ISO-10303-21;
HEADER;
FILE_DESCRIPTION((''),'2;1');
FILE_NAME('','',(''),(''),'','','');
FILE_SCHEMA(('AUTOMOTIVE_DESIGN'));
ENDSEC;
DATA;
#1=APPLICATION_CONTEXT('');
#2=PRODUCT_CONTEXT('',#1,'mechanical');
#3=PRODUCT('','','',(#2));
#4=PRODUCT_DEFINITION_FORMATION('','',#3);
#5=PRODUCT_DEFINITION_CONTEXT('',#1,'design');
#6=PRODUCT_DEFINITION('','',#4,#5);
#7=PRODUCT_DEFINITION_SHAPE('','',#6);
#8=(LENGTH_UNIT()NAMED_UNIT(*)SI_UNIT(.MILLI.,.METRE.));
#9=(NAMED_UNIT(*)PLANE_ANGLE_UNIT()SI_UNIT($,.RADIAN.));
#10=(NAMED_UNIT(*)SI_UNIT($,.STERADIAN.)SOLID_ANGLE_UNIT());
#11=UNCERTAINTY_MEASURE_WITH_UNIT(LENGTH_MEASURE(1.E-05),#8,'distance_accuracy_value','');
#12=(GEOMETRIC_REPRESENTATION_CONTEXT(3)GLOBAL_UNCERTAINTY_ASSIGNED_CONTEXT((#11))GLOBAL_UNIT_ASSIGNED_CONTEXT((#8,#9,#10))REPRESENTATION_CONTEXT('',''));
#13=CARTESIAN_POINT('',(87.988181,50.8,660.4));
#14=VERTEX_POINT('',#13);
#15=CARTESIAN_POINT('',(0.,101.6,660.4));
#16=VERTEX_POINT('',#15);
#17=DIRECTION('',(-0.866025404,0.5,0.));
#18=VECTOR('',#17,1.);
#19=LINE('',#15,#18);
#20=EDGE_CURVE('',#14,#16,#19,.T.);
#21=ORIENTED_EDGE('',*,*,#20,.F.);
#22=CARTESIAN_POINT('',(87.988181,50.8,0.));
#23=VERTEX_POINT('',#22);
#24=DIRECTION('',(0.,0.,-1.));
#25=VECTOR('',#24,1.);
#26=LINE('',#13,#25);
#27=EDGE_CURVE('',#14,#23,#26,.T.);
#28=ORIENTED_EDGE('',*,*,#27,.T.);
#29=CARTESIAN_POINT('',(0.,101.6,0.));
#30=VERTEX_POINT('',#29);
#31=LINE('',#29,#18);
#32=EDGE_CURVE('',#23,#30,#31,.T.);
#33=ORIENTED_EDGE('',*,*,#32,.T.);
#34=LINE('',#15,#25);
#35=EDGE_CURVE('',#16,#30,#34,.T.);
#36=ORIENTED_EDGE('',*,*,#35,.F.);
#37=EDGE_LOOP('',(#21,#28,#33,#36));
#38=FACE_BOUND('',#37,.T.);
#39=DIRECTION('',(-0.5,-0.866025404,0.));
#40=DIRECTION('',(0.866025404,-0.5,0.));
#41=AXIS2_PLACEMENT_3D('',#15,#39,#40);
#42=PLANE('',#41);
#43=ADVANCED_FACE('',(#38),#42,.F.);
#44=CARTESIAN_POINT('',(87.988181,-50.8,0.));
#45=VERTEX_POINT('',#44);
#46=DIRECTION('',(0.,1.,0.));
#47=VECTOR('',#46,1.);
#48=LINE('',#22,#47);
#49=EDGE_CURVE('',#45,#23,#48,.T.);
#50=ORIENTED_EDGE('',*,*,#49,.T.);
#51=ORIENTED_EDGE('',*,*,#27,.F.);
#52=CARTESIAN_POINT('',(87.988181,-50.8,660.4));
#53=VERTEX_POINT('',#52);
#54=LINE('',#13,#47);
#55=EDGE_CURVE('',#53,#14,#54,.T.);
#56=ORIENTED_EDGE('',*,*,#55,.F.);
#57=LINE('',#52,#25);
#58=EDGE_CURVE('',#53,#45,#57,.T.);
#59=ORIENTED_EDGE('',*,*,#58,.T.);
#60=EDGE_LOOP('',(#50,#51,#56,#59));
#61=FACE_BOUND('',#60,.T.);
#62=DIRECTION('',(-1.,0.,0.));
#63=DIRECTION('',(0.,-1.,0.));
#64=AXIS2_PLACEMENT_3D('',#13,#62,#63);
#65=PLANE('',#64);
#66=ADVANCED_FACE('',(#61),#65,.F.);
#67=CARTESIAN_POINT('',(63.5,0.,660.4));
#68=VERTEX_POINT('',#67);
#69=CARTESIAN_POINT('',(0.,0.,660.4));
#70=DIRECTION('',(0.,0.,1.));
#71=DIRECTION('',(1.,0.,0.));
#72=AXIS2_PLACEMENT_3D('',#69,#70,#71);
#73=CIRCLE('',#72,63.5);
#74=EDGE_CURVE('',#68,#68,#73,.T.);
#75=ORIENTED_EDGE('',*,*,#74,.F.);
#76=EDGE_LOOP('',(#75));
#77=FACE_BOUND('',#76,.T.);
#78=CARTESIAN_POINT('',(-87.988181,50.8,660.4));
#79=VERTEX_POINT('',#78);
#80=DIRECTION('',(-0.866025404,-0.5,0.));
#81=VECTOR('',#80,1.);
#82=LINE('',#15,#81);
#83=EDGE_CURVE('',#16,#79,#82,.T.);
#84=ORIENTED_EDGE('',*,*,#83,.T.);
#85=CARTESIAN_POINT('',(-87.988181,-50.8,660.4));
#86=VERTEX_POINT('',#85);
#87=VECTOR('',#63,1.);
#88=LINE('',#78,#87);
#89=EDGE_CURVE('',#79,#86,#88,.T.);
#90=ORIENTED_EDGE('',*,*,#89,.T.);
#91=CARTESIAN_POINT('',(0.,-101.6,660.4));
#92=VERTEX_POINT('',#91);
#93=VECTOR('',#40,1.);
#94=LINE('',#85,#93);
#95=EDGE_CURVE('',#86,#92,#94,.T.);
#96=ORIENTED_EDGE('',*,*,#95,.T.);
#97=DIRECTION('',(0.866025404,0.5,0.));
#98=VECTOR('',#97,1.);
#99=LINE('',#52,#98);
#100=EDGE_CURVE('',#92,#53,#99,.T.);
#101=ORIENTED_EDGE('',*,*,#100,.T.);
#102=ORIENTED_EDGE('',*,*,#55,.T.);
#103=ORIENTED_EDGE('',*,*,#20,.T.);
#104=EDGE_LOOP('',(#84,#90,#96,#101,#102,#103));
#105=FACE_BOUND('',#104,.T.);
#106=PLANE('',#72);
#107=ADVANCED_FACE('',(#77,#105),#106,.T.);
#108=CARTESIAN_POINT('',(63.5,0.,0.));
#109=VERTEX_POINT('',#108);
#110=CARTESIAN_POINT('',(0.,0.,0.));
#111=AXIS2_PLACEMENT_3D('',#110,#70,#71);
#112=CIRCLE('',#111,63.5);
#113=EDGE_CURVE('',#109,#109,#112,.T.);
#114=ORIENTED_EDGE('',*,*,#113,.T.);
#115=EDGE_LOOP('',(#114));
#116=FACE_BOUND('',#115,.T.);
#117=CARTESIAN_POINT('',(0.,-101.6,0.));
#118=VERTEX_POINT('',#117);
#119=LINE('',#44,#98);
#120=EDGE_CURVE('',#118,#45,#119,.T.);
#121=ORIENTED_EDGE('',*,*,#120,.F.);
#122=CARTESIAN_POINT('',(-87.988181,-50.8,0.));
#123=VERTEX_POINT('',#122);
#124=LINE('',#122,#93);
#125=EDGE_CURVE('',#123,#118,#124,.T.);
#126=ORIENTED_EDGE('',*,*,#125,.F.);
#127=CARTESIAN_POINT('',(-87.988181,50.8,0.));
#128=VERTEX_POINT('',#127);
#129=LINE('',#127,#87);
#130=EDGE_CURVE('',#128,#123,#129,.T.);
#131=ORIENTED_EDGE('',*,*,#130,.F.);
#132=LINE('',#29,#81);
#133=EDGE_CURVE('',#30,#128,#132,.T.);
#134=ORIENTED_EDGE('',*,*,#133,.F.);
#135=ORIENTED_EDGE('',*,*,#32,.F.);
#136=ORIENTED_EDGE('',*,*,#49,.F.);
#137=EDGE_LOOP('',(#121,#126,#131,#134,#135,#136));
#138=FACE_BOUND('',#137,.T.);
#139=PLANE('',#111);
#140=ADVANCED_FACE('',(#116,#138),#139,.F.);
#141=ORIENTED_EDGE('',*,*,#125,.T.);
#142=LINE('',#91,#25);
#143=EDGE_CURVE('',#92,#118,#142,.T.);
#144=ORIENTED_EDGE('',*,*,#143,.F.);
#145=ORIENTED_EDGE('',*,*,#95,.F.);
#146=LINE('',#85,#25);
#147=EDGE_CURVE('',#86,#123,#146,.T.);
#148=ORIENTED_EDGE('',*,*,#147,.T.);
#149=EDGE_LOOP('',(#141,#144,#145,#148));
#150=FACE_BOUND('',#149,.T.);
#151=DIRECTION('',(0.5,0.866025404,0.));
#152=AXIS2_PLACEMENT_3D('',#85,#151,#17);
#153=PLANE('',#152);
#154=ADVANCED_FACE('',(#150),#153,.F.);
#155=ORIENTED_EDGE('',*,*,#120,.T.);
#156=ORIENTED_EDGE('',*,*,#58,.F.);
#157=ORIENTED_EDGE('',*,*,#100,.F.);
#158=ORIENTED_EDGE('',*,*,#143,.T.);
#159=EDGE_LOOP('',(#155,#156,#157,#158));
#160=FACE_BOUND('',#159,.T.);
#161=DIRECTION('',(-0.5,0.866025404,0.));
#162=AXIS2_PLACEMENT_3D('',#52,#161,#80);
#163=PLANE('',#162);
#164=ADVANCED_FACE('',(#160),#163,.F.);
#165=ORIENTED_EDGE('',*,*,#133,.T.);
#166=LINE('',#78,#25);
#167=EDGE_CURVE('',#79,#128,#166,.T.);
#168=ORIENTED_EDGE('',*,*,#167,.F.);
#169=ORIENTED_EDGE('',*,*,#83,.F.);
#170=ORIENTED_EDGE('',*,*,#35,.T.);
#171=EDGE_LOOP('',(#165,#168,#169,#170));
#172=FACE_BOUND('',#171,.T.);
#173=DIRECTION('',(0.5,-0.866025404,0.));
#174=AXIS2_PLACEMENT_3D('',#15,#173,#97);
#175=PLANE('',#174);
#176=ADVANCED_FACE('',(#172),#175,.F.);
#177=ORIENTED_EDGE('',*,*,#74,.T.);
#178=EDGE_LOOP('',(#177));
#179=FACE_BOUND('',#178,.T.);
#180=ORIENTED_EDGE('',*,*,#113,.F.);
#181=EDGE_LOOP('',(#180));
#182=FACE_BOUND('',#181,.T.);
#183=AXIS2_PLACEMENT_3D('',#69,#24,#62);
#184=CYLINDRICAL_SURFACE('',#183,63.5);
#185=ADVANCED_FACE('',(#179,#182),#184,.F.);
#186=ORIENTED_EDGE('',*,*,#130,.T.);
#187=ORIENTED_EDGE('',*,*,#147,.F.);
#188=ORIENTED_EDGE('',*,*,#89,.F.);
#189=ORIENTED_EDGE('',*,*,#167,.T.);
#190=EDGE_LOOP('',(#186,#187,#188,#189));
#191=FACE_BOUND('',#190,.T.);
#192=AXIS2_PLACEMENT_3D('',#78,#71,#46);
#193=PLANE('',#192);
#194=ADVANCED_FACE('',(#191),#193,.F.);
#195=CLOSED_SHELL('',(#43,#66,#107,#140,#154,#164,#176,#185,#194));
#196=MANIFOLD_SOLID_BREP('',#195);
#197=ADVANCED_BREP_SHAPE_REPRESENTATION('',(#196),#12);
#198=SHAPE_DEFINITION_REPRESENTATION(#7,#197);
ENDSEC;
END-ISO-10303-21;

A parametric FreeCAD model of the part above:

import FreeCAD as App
import Part
import Sketcher
from FreeCAD import Vector
Q = App.Units.Quantity


def add_polygon(sketch, points):
    """Adds a closed chain of lines whose ends are joined by coincident constraints."""
    first, n = sketch.GeometryCount, len(points)
    for a, b in zip(points, points[1:] + points[:1]):
        sketch.addGeometry(Part.LineSegment(App.Vector(*a, 0), App.Vector(*b, 0)), False)
    for i in range(n):
        sketch.addConstraint(Sketcher.Constraint("Coincident", first + i, 2, first + (i + 1) % n, 1))

doc = App.newDocument("Part")
params = doc.addObject("Spreadsheet::Sheet", "Params")
for row, (alias, value) in enumerate([
    ("sketch1_diameter", "5 in"),
    ("sketch1_height", "4 in"),
    ("sketch1_length", "4 in"),
    ("pad1_length", "26 in"),
], start=1):
    params.set(f"A{row}", alias)
    params.set(f"B{row}", "=" + value)
    params.setAlias(f"B{row}", alias)

body = doc.addObject("PartDesign::Body", "Body")

# Sketch on XY plane
sketch1 = doc.addObject("Sketcher::SketchObject", "Sketch")
body.addObject(sketch1)
sketch1.AttachmentSupport = (doc.XY_Plane, [""])
sketch1.MapMode = "FlatFace"
add_polygon(sketch1, [(87.988181, 50.8), (0, 101.6), (-87.988181, 50.8), (-87.988181, -50.8), (0, -101.6), (87.988181, -50.8)])  # lines 0-5
sketch1.addGeometry(Part.Circle(Vector(0, 0, 0), Vector(0, 0, 1), 63.5), False)  # 6
sketch1.addConstraint([
    Sketcher.Constraint("Vertical", 2),
    Sketcher.Constraint("Vertical", 5),
    Sketcher.Constraint("Coincident", 6, 3, -1, 1),
    Sketcher.Constraint("Symmetric", 0, 2, 3, 2, -1, 1),
    Sketcher.Constraint("Symmetric", 1, 2, 4, 2, -1, 1),
    Sketcher.Constraint("PointOnObject", 0, 2, -2),
    Sketcher.Constraint("Parallel", 0, 3),
    Sketcher.Constraint("Horizontal", 2, 2, 4, 2),
    Sketcher.Constraint("Diameter", 6, Q("5 in")),
    Sketcher.Constraint("DistanceY", 2, 2, 2, 1, Q("4 in")),
    Sketcher.Constraint("Distance", 0, Q("4 in")),
    Sketcher.Constraint("DistanceY", -1, 1, 0, 2, Q("4 in")),
])
sketch1.setExpression("Constraints[14]", "Params.sketch1_diameter")
sketch1.setExpression("Constraints[15]", "Params.sketch1_height")
sketch1.setExpression("Constraints[16]", "Params.sketch1_length")
pad1 = doc.addObject("PartDesign::Pad", "Pad")
body.addObject(pad1)
pad1.Profile = sketch1
pad1.setExpression("Length", "Params.pad1_length")

doc.recompute()
